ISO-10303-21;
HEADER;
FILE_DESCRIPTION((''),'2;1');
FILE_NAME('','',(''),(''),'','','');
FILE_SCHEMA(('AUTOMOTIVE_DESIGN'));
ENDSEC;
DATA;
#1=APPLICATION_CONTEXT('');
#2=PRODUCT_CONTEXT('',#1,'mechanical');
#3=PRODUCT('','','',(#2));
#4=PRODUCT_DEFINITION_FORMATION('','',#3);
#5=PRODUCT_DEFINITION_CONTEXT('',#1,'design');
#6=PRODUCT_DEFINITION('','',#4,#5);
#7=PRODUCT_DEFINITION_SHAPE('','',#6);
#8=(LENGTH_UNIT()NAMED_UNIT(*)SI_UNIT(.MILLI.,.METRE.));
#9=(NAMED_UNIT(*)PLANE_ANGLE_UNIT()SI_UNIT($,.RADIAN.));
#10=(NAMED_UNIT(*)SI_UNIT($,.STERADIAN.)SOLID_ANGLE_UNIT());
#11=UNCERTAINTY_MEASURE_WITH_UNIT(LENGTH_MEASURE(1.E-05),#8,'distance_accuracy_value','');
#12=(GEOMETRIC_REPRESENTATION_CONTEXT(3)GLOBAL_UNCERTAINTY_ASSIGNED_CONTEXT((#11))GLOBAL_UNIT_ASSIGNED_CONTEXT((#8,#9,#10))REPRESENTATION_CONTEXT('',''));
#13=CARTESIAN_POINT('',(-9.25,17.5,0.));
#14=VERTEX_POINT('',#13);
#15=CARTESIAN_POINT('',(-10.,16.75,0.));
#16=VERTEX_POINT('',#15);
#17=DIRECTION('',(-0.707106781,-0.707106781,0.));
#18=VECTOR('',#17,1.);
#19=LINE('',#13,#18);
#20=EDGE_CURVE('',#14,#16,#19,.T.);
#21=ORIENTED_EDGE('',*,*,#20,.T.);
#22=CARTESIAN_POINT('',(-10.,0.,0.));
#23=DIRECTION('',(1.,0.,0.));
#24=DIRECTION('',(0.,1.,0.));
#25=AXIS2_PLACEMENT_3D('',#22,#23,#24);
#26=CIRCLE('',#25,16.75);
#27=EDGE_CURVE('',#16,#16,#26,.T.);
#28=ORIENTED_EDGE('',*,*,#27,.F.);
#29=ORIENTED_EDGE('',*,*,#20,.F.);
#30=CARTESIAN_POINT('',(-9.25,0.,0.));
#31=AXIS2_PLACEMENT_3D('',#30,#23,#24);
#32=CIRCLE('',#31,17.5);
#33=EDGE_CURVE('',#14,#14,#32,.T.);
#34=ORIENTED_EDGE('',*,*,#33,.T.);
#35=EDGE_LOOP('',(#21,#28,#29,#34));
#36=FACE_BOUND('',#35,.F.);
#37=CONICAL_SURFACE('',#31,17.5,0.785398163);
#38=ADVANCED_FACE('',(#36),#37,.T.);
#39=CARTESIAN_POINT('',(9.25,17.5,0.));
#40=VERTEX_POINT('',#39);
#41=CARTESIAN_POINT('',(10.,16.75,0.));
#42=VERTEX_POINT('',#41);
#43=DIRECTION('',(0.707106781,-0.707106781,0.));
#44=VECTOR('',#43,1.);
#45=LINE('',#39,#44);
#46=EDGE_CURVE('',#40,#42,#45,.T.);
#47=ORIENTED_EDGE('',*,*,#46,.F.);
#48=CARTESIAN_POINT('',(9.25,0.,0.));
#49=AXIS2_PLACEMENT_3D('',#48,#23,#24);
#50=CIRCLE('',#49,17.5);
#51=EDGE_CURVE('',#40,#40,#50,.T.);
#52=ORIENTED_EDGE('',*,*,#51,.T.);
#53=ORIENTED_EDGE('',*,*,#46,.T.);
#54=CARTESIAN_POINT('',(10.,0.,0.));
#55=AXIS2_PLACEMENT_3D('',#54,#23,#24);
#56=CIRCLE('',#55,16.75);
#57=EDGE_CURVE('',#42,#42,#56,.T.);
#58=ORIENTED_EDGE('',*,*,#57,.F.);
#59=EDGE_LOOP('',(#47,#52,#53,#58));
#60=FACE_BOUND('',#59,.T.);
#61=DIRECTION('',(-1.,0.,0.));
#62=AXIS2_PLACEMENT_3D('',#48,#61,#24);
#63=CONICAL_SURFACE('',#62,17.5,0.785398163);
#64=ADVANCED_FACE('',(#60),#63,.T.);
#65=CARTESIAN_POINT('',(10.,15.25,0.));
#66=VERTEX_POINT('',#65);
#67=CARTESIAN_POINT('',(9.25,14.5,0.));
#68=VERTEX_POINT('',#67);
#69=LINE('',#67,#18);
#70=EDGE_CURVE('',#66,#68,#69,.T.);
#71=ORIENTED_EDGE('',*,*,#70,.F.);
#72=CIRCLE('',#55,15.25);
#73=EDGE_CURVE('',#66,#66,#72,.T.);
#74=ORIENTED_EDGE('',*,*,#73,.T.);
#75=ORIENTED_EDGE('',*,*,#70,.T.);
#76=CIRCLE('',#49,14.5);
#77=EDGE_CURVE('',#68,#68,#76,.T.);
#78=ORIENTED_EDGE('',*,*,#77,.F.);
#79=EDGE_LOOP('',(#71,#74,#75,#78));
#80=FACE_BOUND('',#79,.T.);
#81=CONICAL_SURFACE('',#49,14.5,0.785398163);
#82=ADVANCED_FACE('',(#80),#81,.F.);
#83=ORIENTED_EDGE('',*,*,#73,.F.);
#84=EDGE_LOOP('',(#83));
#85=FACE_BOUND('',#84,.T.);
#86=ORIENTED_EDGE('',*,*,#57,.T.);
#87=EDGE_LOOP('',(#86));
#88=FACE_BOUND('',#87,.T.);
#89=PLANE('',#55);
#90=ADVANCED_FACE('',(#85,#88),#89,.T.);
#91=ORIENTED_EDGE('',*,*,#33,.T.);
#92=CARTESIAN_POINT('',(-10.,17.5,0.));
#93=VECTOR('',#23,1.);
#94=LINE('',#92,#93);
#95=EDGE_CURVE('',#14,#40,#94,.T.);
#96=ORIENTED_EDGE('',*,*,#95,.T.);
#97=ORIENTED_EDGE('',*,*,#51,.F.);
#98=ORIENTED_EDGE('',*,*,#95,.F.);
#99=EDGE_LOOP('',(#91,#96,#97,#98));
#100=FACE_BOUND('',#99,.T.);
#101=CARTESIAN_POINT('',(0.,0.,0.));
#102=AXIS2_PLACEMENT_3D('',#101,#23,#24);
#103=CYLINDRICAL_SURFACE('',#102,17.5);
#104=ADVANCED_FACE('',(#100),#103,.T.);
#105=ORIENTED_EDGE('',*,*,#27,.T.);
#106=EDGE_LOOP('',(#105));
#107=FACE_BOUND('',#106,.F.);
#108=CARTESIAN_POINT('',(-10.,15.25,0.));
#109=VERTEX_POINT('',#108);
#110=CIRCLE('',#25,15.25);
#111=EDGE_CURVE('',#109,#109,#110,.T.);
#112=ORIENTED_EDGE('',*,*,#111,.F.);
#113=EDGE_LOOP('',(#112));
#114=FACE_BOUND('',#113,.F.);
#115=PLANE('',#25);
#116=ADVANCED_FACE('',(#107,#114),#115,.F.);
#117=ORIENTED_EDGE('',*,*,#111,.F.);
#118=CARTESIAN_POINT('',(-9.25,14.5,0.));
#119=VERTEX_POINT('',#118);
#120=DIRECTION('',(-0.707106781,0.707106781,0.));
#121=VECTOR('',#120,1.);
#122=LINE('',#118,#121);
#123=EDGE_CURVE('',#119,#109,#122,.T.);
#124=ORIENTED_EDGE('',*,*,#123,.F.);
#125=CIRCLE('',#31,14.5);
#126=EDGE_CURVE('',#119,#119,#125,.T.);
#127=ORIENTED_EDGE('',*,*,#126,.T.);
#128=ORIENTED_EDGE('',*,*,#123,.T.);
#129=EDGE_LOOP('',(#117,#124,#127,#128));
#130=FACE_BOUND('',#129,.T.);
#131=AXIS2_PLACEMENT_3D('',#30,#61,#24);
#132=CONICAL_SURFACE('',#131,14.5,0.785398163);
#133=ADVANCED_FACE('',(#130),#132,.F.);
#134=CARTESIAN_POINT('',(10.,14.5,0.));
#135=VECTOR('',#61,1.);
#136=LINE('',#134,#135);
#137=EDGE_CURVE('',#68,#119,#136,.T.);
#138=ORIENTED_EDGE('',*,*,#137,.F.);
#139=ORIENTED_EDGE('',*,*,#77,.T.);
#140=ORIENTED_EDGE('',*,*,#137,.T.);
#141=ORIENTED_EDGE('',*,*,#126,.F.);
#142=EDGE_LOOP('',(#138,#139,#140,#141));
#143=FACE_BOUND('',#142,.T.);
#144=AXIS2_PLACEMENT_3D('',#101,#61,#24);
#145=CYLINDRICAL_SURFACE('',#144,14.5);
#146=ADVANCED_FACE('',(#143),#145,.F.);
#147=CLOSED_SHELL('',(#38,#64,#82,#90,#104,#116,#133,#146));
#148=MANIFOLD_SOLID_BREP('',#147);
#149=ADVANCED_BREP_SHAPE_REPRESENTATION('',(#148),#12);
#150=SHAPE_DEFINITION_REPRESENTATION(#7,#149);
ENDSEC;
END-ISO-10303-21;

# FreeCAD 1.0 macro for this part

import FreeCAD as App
import Part
import Sketcher

V = App.Vector


def edges_at(feature, points):
    """Names of the edges that pass closest to the given points."""
    edges = feature.Shape.Edges
    near = lambda p: min(range(len(edges)), key=lambda i: edges[i].distToShape(Part.Vertex(*p))[0])
    return sorted({f"Edge{near(p) + 1}" for p in points})

doc = App.newDocument("Part")
params = doc.addObject("Spreadsheet::Sheet", "Params")
for row, (alias, value) in enumerate([
    ("sketch1_diameter", "35 mm"),
    ("sketch1_diameter2", "29 mm"),
    ("pad1_length", "20 mm"),
    ("chamfer_size", "0.75 mm"),
], start=1):
    params.set(f"A{row}", alias)
    params.set(f"B{row}", "=" + value)
    params.setAlias(f"B{row}", alias)

body = doc.addObject("PartDesign::Body", "Body")

# Sketch on YZ plane
sketch1 = doc.addObject("Sketcher::SketchObject", "Sketch")
body.addObject(sketch1)
sketch1.AttachmentSupport = (doc.YZ_Plane, [""])
sketch1.MapMode = "FlatFace"
sketch1.addGeometry([
    Part.Circle(V(0, 0, 0), V(0, 0, 1), 18),
    Part.Circle(V(0, 0, 0), V(0, 0, 1), 14),
], False)
sketch1.addConstraint([
    Sketcher.Constraint("Coincident", 0, 3, -1, 1),
    Sketcher.Constraint("Coincident", 1, 3, -1, 1),
    Sketcher.Constraint("Diameter", 0, 35.0),
    Sketcher.Constraint("Diameter", 1, 29.0),
])
sketch1.setExpression("Constraints[2]", "Params.sketch1_diameter")
sketch1.setExpression("Constraints[3]", "Params.sketch1_diameter2")
pad1 = doc.addObject("PartDesign::Pad", "Pad")
body.addObject(pad1)
pad1.Profile = sketch1
pad1.setExpression("Length", "Params.pad1_length")
pad1.Midplane = True
doc.recompute()

chamfer = doc.addObject("PartDesign::Chamfer", "Chamfer")
body.addObject(chamfer)
chamfer.Base = (pad1, edges_at(pad1, [
    (-10, -17.5, 0),
    (10, -17.5, 0),
    (10, -14.5, 0),
    (-10, -14.5, 0),
]))
chamfer.setExpression("Size", "Params.chamfer_size")

doc.recompute()
